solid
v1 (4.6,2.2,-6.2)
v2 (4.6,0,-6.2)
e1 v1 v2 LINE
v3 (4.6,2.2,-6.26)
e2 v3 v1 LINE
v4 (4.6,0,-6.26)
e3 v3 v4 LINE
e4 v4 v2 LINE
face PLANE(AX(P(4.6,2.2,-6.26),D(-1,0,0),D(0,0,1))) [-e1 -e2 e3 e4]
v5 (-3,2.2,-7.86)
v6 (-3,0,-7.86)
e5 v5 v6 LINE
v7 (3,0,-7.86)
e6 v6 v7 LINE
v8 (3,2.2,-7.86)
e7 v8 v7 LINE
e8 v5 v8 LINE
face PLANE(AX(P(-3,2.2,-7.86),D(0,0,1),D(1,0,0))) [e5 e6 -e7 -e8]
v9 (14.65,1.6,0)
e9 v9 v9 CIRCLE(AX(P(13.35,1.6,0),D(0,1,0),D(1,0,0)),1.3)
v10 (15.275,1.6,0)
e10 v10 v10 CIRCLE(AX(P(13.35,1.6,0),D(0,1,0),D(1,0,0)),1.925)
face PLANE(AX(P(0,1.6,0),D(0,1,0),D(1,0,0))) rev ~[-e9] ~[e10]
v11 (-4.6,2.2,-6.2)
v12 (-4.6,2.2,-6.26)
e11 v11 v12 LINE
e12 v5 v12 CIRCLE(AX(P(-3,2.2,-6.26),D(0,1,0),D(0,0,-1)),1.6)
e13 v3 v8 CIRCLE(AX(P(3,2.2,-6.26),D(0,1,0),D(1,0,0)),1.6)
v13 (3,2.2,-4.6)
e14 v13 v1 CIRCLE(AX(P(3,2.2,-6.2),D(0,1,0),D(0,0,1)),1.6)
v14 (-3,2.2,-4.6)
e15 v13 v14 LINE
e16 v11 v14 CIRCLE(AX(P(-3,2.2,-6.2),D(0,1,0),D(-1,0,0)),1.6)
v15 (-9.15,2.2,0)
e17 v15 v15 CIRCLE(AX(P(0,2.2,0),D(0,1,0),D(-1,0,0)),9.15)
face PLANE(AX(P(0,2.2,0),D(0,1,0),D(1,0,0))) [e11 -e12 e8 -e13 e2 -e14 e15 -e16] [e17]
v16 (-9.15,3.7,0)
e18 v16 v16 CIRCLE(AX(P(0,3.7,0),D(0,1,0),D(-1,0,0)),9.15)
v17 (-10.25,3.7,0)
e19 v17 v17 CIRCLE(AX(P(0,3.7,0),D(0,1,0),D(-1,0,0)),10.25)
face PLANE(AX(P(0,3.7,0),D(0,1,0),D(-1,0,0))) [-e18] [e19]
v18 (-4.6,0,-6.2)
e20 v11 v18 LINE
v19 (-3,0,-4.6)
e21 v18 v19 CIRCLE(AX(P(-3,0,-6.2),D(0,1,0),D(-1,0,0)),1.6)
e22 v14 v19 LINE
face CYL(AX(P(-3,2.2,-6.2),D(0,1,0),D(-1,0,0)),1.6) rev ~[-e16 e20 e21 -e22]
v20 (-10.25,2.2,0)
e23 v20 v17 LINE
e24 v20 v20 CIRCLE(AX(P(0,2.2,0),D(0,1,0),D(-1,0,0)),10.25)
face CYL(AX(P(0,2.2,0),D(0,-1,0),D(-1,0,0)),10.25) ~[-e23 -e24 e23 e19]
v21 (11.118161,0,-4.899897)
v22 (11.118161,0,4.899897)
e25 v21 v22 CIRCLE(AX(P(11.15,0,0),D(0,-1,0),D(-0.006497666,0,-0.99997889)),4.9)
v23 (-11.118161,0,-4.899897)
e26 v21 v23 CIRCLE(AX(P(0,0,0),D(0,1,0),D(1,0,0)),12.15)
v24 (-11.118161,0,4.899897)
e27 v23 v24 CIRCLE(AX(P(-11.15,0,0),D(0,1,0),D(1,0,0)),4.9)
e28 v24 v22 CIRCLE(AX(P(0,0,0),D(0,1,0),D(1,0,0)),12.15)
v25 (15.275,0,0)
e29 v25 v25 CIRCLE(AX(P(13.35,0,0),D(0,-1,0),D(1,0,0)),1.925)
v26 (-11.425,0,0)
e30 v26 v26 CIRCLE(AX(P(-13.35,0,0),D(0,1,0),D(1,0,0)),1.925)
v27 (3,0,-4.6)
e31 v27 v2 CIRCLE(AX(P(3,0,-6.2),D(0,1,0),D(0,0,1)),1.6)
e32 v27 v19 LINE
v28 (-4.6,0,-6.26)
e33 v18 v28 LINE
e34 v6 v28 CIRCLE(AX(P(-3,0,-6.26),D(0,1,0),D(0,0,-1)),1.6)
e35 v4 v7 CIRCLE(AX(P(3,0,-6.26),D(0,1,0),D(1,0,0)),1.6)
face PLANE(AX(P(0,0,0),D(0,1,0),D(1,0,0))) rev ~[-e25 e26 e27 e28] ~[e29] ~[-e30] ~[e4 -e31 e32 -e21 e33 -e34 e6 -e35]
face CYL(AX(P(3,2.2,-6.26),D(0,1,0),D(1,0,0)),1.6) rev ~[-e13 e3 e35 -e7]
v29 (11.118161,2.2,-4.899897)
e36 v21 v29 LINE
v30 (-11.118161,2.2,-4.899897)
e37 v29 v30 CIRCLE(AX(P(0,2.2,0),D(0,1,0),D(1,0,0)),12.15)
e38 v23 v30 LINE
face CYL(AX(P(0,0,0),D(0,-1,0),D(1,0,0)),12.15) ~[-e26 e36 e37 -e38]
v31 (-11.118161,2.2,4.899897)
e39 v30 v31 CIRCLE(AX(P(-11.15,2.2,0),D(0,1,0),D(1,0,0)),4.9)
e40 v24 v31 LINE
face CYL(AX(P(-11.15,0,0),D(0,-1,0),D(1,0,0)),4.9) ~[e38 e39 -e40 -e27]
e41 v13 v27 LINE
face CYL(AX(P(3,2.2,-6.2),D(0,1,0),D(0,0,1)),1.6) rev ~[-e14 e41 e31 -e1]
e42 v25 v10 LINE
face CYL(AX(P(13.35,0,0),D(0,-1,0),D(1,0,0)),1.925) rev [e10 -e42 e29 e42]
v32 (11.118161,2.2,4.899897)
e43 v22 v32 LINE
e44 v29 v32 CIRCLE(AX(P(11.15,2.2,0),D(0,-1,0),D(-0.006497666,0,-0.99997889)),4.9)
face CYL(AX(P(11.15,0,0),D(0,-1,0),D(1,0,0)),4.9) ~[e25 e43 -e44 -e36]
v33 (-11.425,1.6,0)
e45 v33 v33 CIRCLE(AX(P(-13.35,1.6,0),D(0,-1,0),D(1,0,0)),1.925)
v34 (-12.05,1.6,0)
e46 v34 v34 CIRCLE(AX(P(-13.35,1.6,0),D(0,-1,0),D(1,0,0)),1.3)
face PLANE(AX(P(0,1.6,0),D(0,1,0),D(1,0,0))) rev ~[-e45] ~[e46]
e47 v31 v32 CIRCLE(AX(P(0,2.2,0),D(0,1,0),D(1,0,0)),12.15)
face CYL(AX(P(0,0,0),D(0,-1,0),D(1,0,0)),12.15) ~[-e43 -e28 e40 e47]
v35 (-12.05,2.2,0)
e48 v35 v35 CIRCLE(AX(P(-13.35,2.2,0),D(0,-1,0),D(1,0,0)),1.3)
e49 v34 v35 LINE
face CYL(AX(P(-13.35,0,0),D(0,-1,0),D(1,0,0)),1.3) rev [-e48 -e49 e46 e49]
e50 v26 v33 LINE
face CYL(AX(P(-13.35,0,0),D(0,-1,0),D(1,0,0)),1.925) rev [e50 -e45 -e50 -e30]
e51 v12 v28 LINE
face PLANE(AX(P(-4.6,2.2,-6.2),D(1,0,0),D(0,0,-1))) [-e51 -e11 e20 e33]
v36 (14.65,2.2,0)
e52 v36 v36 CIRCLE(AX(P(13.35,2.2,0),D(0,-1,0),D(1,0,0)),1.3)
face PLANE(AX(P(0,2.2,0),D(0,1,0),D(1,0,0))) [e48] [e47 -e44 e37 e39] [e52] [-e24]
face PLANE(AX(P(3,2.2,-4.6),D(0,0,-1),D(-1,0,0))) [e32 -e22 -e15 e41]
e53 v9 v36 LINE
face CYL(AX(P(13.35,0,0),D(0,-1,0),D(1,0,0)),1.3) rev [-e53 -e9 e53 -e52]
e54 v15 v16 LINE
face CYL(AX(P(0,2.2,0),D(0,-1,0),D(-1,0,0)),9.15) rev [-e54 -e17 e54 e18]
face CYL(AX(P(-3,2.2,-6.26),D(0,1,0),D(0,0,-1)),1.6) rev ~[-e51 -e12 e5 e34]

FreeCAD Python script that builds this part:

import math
import FreeCAD as App
import Part
import Sketcher

V = App.Vector

doc = App.newDocument("Part")
body = doc.addObject("PartDesign::Body", "Body")

sketch1 = body.newObject("Sketcher::SketchObject", "Sketch")
sketch1.AttachmentSupport = (doc.getObject("XZ_Plane"), [""])
sketch1.MapMode = "FlatFace"
sketch1.addGeometry(Part.ArcOfCircle(Part.Circle(V(11.2, 0, 0), V(0, 0, 1), 4.9), math.radians(-90), math.radians(90)), False)
sketch1.addGeometry(Part.ArcOfCircle(Part.Circle(V(0, 0, 0), V(0, 0, 1), 12.2), math.radians(-156), math.radians(-24)), False)
sketch1.addGeometry(Part.ArcOfCircle(Part.Circle(V(-11.2, 0, 0), V(0, 0, 1), 4.9), math.radians(90), math.radians(270)), False)
sketch1.addGeometry(Part.ArcOfCircle(Part.Circle(V(0, 0, 0), V(0, 0, 1), 12.2), math.radians(24), math.radians(156)), False)
sketch1.addConstraint(Sketcher.Constraint("Coincident", 0, 1, 1, 2))
sketch1.addConstraint(Sketcher.Constraint("Coincident", 1, 1, 2, 2))
sketch1.addConstraint(Sketcher.Constraint("Coincident", 2, 1, 3, 2))
sketch1.addConstraint(Sketcher.Constraint("Coincident", 3, 1, 0, 2))
sketch1.addConstraint(Sketcher.Constraint("Coincident", 1, 3, -1, 1))
sketch1.addConstraint(Sketcher.Constraint("Coincident", 3, 3, -1, 1))
sketch1.addConstraint(Sketcher.Constraint("Equal", 0, 2))
sketch1.addConstraint(Sketcher.Constraint("Equal", 1, 3))
sketch1.addConstraint(Sketcher.Constraint("Symmetric", 0, 3, 2, 3, -1, 1))
sketch1.addConstraint(Sketcher.Constraint("PointOnObject", 0, 3, -1))
sketch1.addConstraint(Sketcher.Constraint("Radius", 0, 4.9))
sketch1.addConstraint(Sketcher.Constraint("Radius", 1, 12.15))
sketch1.addConstraint(Sketcher.Constraint("DistanceX", -1, 1, 0, 3, 11.15))
pad1 = body.newObject("PartDesign::Pad", "Pad")
pad1.Profile = sketch1
pad1.Length = 2.2
pad1.Reversed = True

sketch2 = body.newObject("Sketcher::SketchObject", "Sketch001")
sketch2.AttachmentSupport = (doc.getObject("XZ_Plane"), [""])
sketch2.MapMode = "FlatFace"
sketch2.addGeometry(Part.Circle(V(-13.3, 0, 0), V(0, 0, 1), 1.9), False)
sketch2.addConstraint(Sketcher.Constraint("PointOnObject", 0, 3, -1))
sketch2.addConstraint(Sketcher.Constraint("Diameter", 0, 3.85))
sketch2.addConstraint(Sketcher.Constraint("DistanceX", 0, 3, -1, 1, 13.35))
pocket1 = body.newObject("PartDesign::Pocket", "Pocket")
pocket1.Profile = sketch2
pocket1.Length = 1.6

sketch3 = body.newObject("Sketcher::SketchObject", "Sketch002")
sketch3.AttachmentSupport = (doc.getObject("XZ_Plane"), [""])
sketch3.MapMode = "FlatFace"
sketch3.addGeometry(Part.Circle(V(13.3, 0, 0), V(0, 0, 1), 1.9), False)
sketch3.addGeometry(Part.ArcOfCircle(Part.Circle(V(0, 0, 0), V(0, 0, 1), 12.2), math.radians(-2.25), math.radians(2.25)), False)
sketch3.addGeometry(Part.ArcOfCircle(Part.Circle(V(13.3, 0, 0), V(0, 0, 1), 1.3), math.radians(158), math.radians(202)), False)
sketch3.addConstraint(Sketcher.Constraint("Coincident", 1, 1, 2, 2))
sketch3.addConstraint(Sketcher.Constraint("Coincident", 2, 1, 1, 2))
sketch3.addConstraint(Sketcher.Constraint("Coincident", 1, 3, -1, 1))
sketch3.addConstraint(Sketcher.Constraint("Coincident", 2, 3, 0, 3))
sketch3.addConstraint(Sketcher.Constraint("PointOnObject", 0, 3, -1))
sketch3.addConstraint(Sketcher.Constraint("Radius", 2, 1.3))
sketch3.addConstraint(Sketcher.Constraint("Diameter", 0, 3.85))
sketch3.addConstraint(Sketcher.Constraint("Radius", 1, 12.15))
sketch3.addConstraint(Sketcher.Constraint("DistanceX", -1, 1, 0, 3, 13.35))
pocket2 = body.newObject("PartDesign::Pocket", "Pocket001")
pocket2.Profile = sketch3
pocket2.Length = 1.6

sketch4 = body.newObject("Sketcher::SketchObject", "Sketch003")
sketch4.AttachmentSupport = (doc.getObject("XZ_Plane"), [""])
sketch4.MapMode = "FlatFace"
sketch4.addGeometry(Part.Circle(V(13.3, 0, 0), V(0, 0, 1), 1.3), False)
sketch4.addConstraint(Sketcher.Constraint("PointOnObject", 0, 3, -1))
sketch4.addConstraint(Sketcher.Constraint("Diameter", 0, 2.6))
sketch4.addConstraint(Sketcher.Constraint("DistanceX", -1, 1, 0, 3, 13.35))
pocket3 = body.newObject("PartDesign::Pocket", "Pocket002")
pocket3.Profile = sketch4
pocket3.Length = 2.2

sketch5 = body.newObject("Sketcher::SketchObject", "Sketch004")
sketch5.AttachmentSupport = (doc.getObject("XZ_Plane"), [""])
sketch5.MapMode = "FlatFace"
sketch5.addGeometry(Part.Circle(V(-13.3, 0, 0), V(0, 0, 1), 1.3), False)
sketch5.addConstraint(Sketcher.Constraint("PointOnObject", 0, 3, -1))
sketch5.addConstraint(Sketcher.Constraint("Diameter", 0, 2.6))
sketch5.addConstraint(Sketcher.Constraint("DistanceX", 0, 3, -1, 1, 13.35))
pocket4 = body.newObject("PartDesign::Pocket", "Pocket003")
pocket4.Profile = sketch5
pocket4.Length = 2.2

sketch6 = body.newObject("Sketcher::SketchObject", "Sketch005")
sketch6.AttachmentSupport = (doc.getObject("XZ_Plane"), [""])
sketch6.MapMode = "FlatFace"
sketch6.AttachmentOffset = App.Placement(V(0, 0, -2.2), App.Rotation())
sketch6.addGeometry(Part.Circle(V(0, 0, 0), V(0, 0, 1), 10), False)
sketch6.addGeometry(Part.Circle(V(0, 0, 0), V(0, 0, 1), 9), False)
sketch6.addConstraint(Sketcher.Constraint("Coincident", 0, 3, -1, 1))
sketch6.addConstraint(Sketcher.Constraint("Coincident", 1, 3, -1, 1))
sketch6.addConstraint(Sketcher.Constraint("Diameter", 0, 20.5))
sketch6.addConstraint(Sketcher.Constraint("Diameter", 1, 18.3))
pad2 = body.newObject("PartDesign::Pad", "Pad001")
pad2.Profile = sketch6
pad2.Length = 1.5
pad2.Reversed = True

sketch7 = body.newObject("Sketcher::SketchObject", "Sketch006")
sketch7.AttachmentSupport = (doc.getObject("XZ_Plane"), [""])
sketch7.MapMode = "FlatFace"
sketch7.AttachmentOffset = App.Placement(V(0, 0, -2.2), App.Rotation())
sketch7.addGeometry(Part.LineSegment(V(3, -7.86, 0), V(-3, -7.86, 0)), False)
sketch7.addGeometry(Part.ArcOfCircle(Part.Circle(V(-3, -6.26, 0), V(0, 0, 1), 1.6), math.radians(180), math.radians(270)), False)
sketch7.addGeometry(Part.LineSegment(V(-4.6, -6.26, 0), V(-4.6, -6.2, 0)), False)
sketch7.addGeometry(Part.ArcOfCircle(Part.Circle(V(-3, -6.2, 0), V(0, 0, 1), 1.6), math.radians(90), math.radians(180)), False)
sketch7.addGeometry(Part.LineSegment(V(-3, -4.6, 0), V(3, -4.6, 0)), False)
sketch7.addGeometry(Part.ArcOfCircle(Part.Circle(V(3, -6.2, 0), V(0, 0, 1), 1.6), math.radians(0), math.radians(90)), False)
sketch7.addGeometry(Part.LineSegment(V(4.6, -6.2, 0), V(4.6, -6.26, 0)), False)
sketch7.addGeometry(Part.ArcOfCircle(Part.Circle(V(3, -6.26, 0), V(0, 0, 1), 1.6), math.radians(-90), math.radians(0)), False)
sketch7.addConstraint(Sketcher.Constraint("Tangent", 0, 2, 1, 2))
sketch7.addConstraint(Sketcher.Constraint("Tangent", 1, 1, 2, 1))
sketch7.addConstraint(Sketcher.Constraint("Tangent", 2, 2, 3, 2))
sketch7.addConstraint(Sketcher.Constraint("Tangent", 3, 1, 4, 1))
sketch7.addConstraint(Sketcher.Constraint("Tangent", 4, 2, 5, 2))
sketch7.addConstraint(Sketcher.Constraint("Tangent", 5, 1, 6, 1))
sketch7.addConstraint(Sketcher.Constraint("Tangent", 6, 2, 7, 2))
sketch7.addConstraint(Sketcher.Constraint("Tangent", 7, 1, 0, 1))
sketch7.addConstraint(Sketcher.Constraint("Horizontal", 0))
sketch7.addConstraint(Sketcher.Constraint("Vertical", 2))
sketch7.addConstraint(Sketcher.Constraint("Horizontal", 4))
sketch7.addConstraint(Sketcher.Constraint("Vertical", 6))
sketch7.addConstraint(Sketcher.Constraint("Equal", 1, 3))
sketch7.addConstraint(Sketcher.Constraint("Equal", 3, 5))
sketch7.addConstraint(Sketcher.Constraint("Equal", 5, 7))
sketch7.addConstraint(Sketcher.Constraint("Radius", 1, 1.6))
sketch7.addConstraint(Sketcher.Constraint("DistanceX", 1, 1, -1, 1, 4.6))
sketch7.addConstraint(Sketcher.Constraint("DistanceY", 3, 1, -1, 1, 4.6))
sketch7.addConstraint(Sketcher.Constraint("DistanceX", -1, 1, 5, 1, 4.6))
sketch7.addConstraint(Sketcher.Constraint("DistanceY", 0, 2, 3, 1, 3.26))
pocket5 = body.newObject("PartDesign::Pocket", "Pocket004")
pocket5.Profile = sketch7
pocket5.Length = 10
pocket5.Reversed = True

doc.recompute()
